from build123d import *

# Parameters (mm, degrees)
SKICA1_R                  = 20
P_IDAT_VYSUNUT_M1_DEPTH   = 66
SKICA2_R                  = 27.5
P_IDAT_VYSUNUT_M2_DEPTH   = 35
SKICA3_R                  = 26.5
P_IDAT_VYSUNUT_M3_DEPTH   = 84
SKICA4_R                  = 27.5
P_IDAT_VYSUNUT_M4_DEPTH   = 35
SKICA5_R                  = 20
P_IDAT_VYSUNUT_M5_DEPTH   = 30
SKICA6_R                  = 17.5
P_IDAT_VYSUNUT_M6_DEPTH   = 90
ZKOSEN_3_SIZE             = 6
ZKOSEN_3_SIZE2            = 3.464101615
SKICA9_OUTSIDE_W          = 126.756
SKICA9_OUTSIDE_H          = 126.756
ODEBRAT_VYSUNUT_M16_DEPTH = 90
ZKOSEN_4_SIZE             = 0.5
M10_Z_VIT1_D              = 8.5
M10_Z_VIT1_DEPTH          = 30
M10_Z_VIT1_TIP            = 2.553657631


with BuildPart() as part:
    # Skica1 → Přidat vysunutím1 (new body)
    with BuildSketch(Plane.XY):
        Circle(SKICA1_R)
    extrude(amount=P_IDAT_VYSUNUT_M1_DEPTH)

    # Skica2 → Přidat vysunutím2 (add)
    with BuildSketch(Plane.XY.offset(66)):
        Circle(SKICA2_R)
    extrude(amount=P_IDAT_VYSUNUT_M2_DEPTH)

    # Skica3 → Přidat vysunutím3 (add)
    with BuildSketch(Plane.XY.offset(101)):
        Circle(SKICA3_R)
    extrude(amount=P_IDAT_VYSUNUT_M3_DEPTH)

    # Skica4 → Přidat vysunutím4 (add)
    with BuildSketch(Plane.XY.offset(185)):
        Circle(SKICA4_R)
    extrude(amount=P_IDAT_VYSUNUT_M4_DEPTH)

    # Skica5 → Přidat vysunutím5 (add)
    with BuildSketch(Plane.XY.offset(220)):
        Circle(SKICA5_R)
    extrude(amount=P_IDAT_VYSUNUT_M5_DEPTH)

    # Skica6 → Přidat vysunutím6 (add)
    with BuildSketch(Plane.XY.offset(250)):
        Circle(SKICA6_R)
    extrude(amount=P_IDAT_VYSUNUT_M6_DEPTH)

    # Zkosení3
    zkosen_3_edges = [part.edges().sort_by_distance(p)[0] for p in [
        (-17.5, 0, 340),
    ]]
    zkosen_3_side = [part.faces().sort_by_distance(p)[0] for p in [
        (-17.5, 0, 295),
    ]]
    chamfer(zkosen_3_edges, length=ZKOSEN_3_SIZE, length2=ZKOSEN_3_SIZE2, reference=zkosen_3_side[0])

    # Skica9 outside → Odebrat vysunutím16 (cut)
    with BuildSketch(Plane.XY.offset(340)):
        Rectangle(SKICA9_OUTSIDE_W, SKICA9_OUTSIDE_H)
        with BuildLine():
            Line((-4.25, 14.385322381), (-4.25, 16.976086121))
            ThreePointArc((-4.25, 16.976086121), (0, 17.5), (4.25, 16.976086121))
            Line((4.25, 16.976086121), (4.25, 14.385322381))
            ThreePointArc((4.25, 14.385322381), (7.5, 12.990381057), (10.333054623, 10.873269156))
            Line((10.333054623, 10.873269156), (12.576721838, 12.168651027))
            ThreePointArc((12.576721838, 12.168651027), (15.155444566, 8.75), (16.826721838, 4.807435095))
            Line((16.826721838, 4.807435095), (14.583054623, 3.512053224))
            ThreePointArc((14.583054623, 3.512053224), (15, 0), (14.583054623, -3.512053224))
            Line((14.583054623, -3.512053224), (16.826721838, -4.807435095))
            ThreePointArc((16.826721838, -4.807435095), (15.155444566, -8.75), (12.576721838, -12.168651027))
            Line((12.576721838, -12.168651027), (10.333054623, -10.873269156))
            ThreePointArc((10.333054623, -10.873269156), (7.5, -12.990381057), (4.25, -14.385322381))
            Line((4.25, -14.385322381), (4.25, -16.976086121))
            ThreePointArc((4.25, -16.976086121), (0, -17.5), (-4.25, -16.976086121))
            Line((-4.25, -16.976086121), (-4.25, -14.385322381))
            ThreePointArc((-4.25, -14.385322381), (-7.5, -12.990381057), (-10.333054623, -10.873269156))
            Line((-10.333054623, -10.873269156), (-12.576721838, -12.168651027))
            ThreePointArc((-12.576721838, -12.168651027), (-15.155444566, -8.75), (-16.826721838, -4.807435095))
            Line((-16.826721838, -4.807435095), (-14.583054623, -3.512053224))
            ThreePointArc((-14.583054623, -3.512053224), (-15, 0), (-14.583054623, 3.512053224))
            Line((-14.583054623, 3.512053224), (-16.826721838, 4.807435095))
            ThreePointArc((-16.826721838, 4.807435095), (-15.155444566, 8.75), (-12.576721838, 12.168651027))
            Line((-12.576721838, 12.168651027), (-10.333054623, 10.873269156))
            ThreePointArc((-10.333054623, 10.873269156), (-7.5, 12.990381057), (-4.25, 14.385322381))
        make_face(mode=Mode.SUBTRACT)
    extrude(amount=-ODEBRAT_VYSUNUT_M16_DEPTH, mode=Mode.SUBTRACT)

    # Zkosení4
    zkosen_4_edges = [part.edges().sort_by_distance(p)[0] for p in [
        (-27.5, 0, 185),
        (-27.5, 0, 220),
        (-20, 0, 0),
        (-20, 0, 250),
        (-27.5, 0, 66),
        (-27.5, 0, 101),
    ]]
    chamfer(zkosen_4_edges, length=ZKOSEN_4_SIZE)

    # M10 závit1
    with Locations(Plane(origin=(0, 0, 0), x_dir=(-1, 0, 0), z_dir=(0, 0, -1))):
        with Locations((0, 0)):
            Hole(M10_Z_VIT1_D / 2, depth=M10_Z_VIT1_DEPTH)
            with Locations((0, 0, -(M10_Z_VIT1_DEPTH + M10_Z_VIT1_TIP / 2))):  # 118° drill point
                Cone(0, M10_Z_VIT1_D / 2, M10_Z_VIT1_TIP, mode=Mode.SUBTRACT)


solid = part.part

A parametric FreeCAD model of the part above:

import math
import FreeCAD as App
import Part
import Sketcher

V = App.Vector
Q = App.Units.Quantity


def edges_at(feature, points):
    """Names of the edges that pass closest to the given points."""
    edges = feature.Shape.Edges
    near = lambda p: min(range(len(edges)), key=lambda i: edges[i].distToShape(Part.Vertex(*p))[0])
    return sorted({f"Edge{near(p) + 1}" for p in points})


def add_polygon(sketch, points):
    """Adds a closed chain of lines whose ends are joined by coincident constraints."""
    first, n = sketch.GeometryCount, len(points)
    for a, b in zip(points, points[1:] + points[:1]):
        sketch.addGeometry(Part.LineSegment(App.Vector(*a, 0), App.Vector(*b, 0)), False)
    for i in range(n):
        sketch.addConstraint(Sketcher.Constraint("Coincident", first + i, 2, first + (i + 1) % n, 1))

doc = App.newDocument("Part")
body = doc.addObject("PartDesign::Body", "Body")

# Sketch on XY plane
sketch1 = body.newObject("Sketcher::SketchObject", "Sketch")
sketch1.AttachmentSupport = (doc.getObject("XY_Plane"), [""])
sketch1.MapMode = "FlatFace"
sketch1.addGeometry(Part.Circle(V(0, 0, 0), V(0, 0, 1), 20), False)
sketch1.addConstraint(Sketcher.Constraint("Coincident", 0, 3, -1, 1))
sketch1.addConstraint(Sketcher.Constraint("Diameter", 0, 40.0))
pad1 = body.newObject("PartDesign::Pad", "Pad")
pad1.Profile = sketch1
pad1.Length = 66

# Sketch on XY plane
sketch2 = body.newObject("Sketcher::SketchObject", "Sketch001")
sketch2.AttachmentSupport = (doc.getObject("XY_Plane"), [""])
sketch2.MapMode = "FlatFace"
sketch2.AttachmentOffset = App.Placement(V(0, 0, 66), App.Rotation())
sketch2.addGeometry(Part.Circle(V(0, 0, 0), V(0, 0, 1), 28), False)
sketch2.addConstraint(Sketcher.Constraint("Coincident", 0, 3, -1, 1))
sketch2.addConstraint(Sketcher.Constraint("Diameter", 0, 55.0))
pad2 = body.newObject("PartDesign::Pad", "Pad001")
pad2.Profile = sketch2
pad2.Length = 35

# Sketch on XY plane
sketch3 = body.newObject("Sketcher::SketchObject", "Sketch002")
sketch3.AttachmentSupport = (doc.getObject("XY_Plane"), [""])
sketch3.MapMode = "FlatFace"
sketch3.AttachmentOffset = App.Placement(V(0, 0, 101), App.Rotation())
sketch3.addGeometry(Part.Circle(V(0, 0, 0), V(0, 0, 1), 26), False)
sketch3.addConstraint(Sketcher.Constraint("Coincident", 0, 3, -1, 1))
sketch3.addConstraint(Sketcher.Constraint("Diameter", 0, 53.0))
pad3 = body.newObject("PartDesign::Pad", "Pad002")
pad3.Profile = sketch3
pad3.Length = 84

# Sketch on XY plane
sketch4 = body.newObject("Sketcher::SketchObject", "Sketch003")
sketch4.AttachmentSupport = (doc.getObject("XY_Plane"), [""])
sketch4.MapMode = "FlatFace"
sketch4.AttachmentOffset = App.Placement(V(0, 0, 185), App.Rotation())
sketch4.addGeometry(Part.Circle(V(0, 0, 0), V(0, 0, 1), 28), False)
sketch4.addConstraint(Sketcher.Constraint("Coincident", 0, 3, -1, 1))
sketch4.addConstraint(Sketcher.Constraint("Diameter", 0, 55.0))
pad4 = body.newObject("PartDesign::Pad", "Pad003")
pad4.Profile = sketch4
pad4.Length = 35

# Sketch on XY plane
sketch5 = body.newObject("Sketcher::SketchObject", "Sketch004")
sketch5.AttachmentSupport = (doc.getObject("XY_Plane"), [""])
sketch5.MapMode = "FlatFace"
sketch5.AttachmentOffset = App.Placement(V(0, 0, 220), App.Rotation())
sketch5.addGeometry(Part.Circle(V(0, 0, 0), V(0, 0, 1), 20), False)
sketch5.addConstraint(Sketcher.Constraint("Coincident", 0, 3, -1, 1))
sketch5.addConstraint(Sketcher.Constraint("Diameter", 0, 40.0))
pad5 = body.newObject("PartDesign::Pad", "Pad004")
pad5.Profile = sketch5
pad5.Length = 30

# Sketch on XY plane
sketch6 = body.newObject("Sketcher::SketchObject", "Sketch005")
sketch6.AttachmentSupport = (doc.getObject("XY_Plane"), [""])
sketch6.MapMode = "FlatFace"
sketch6.AttachmentOffset = App.Placement(V(0, 0, 250), App.Rotation())
sketch6.addGeometry(Part.Circle(V(0, 0, 0), V(0, 0, 1), 18), False)
sketch6.addConstraint(Sketcher.Constraint("Coincident", 0, 3, -1, 1))
sketch6.addConstraint(Sketcher.Constraint("Diameter", 0, 35.0))
pad6 = body.newObject("PartDesign::Pad", "Pad005")
pad6.Profile = sketch6
pad6.Length = 90
doc.recompute()

chamfer = body.newObject("PartDesign::Chamfer", "Chamfer")
chamfer.Base = (pad6, edges_at(pad6, [(-17.5, 0, 340)]))
chamfer.ChamferType = "Two distances"
chamfer.Size = 6
chamfer.Size2 = 3.464102

# Sketch on XY plane
sketch7 = body.newObject("Sketcher::SketchObject", "Sketch006")
sketch7.AttachmentSupport = (doc.getObject("XY_Plane"), [""])
sketch7.MapMode = "FlatFace"
sketch7.AttachmentOffset = App.Placement(V(0, 0, 340), App.Rotation())
add_polygon(sketch7, [(-63.4, 63.4), (-63.4, -63.4), (63.4, -63.4), (63.4, 63.4)])  # lines 0-3
sketch7.addGeometry(Part.ArcOfCircle(Part.Circle(V(0, 0, 0), V(0, 0, 1), 15), math.radians(106), math.radians(134)), False)  # 4
sketch7.addGeometry(Part.LineSegment(V(-4.2, 14.4, 0), V(-4.2, 17, 0)), False)  # 5
sketch7.addGeometry(Part.ArcOfCircle(Part.Circle(V(0, 0, 0), V(0, 0, 1), 17.5), math.radians(76), math.radians(104)), False)  # 6
sketch7.addGeometry(Part.LineSegment(V(4.2, 17, 0), V(4.2, 14.4, 0)), False)  # 7
sketch7.addGeometry(Part.ArcOfCircle(Part.Circle(V(0, 0, 0), V(0, 0, 1), 15), math.radians(46), math.radians(74)), False)  # 8
sketch7.addGeometry(Part.LineSegment(V(10.3, 10.9, 0), V(12.6, 12.2, 0)), False)  # 9
sketch7.addGeometry(Part.ArcOfCircle(Part.Circle(V(0, 0, 0), V(0, 0, 1), 17.5), math.radians(16), math.radians(44)), False)  # 10
sketch7.addGeometry(Part.LineSegment(V(16.8, 4.8, 0), V(14.6, 3.5, 0)), False)  # 11
sketch7.addGeometry(Part.ArcOfCircle(Part.Circle(V(0, 0, 0), V(0, 0, 1), 15), math.radians(-14), math.radians(14)), False)  # 12
sketch7.addGeometry(Part.LineSegment(V(14.6, -3.5, 0), V(16.8, -4.8, 0)), False)  # 13
sketch7.addGeometry(Part.ArcOfCircle(Part.Circle(V(0, 0, 0), V(0, 0, 1), 17.5), math.radians(-44), math.radians(-16)), False)  # 14
sketch7.addGeometry(Part.LineSegment(V(12.6, -12.2, 0), V(10.3, -10.9, 0)), False)  # 15
sketch7.addGeometry(Part.ArcOfCircle(Part.Circle(V(0, 0, 0), V(0, 0, 1), 15), math.radians(-74), math.radians(-46)), False)  # 16
sketch7.addGeometry(Part.LineSegment(V(4.2, -14.4, 0), V(4.2, -17, 0)), False)  # 17
sketch7.addGeometry(Part.ArcOfCircle(Part.Circle(V(0, 0, 0), V(0, 0, 1), 17.5), math.radians(-104), math.radians(-76)), False)  # 18
sketch7.addGeometry(Part.LineSegment(V(-4.2, -17, 0), V(-4.2, -14.4, 0)), False)  # 19
sketch7.addGeometry(Part.ArcOfCircle(Part.Circle(V(0, 0, 0), V(0, 0, 1), 15), math.radians(-134), math.radians(-106)), False)  # 20
sketch7.addGeometry(Part.LineSegment(V(-10.3, -10.9, 0), V(-12.6, -12.2, 0)), False)  # 21
sketch7.addGeometry(Part.ArcOfCircle(Part.Circle(V(0, 0, 0), V(0, 0, 1), 17.5), math.radians(-164), math.radians(-136)), False)  # 22
sketch7.addGeometry(Part.LineSegment(V(-16.8, -4.8, 0), V(-14.6, -3.5, 0)), False)  # 23
sketch7.addGeometry(Part.ArcOfCircle(Part.Circle(V(0, 0, 0), V(0, 0, 1), 15), math.radians(166), math.radians(194)), False)  # 24
sketch7.addGeometry(Part.LineSegment(V(-14.6, 3.5, 0), V(-16.8, 4.8, 0)), False)  # 25
sketch7.addGeometry(Part.ArcOfCircle(Part.Circle(V(0, 0, 0), V(0, 0, 1), 17.5), math.radians(136), math.radians(164)), False)  # 26
sketch7.addGeometry(Part.LineSegment(V(-12.6, 12.2, 0), V(-10.3, 10.9, 0)), False)  # 27
sketch7.addConstraint(Sketcher.Constraint("Coincident", 4, 1, 5, 1))
sketch7.addConstraint(Sketcher.Constraint("Coincident", 5, 2, 6, 2))
sketch7.addConstraint(Sketcher.Constraint("Coincident", 6, 1, 7, 1))
sketch7.addConstraint(Sketcher.Constraint("Coincident", 7, 2, 8, 2))
sketch7.addConstraint(Sketcher.Constraint("Coincident", 8, 1, 9, 1))
sketch7.addConstraint(Sketcher.Constraint("Coincident", 9, 2, 10, 2))
sketch7.addConstraint(Sketcher.Constraint("Coincident", 10, 1, 11, 1))
sketch7.addConstraint(Sketcher.Constraint("Coincident", 11, 2, 12, 2))
sketch7.addConstraint(Sketcher.Constraint("Coincident", 12, 1, 13, 1))
sketch7.addConstraint(Sketcher.Constraint("Coincident", 13, 2, 14, 2))
sketch7.addConstraint(Sketcher.Constraint("Coincident", 14, 1, 15, 1))
sketch7.addConstraint(Sketcher.Constraint("Coincident", 15, 2, 16, 2))
sketch7.addConstraint(Sketcher.Constraint("Coincident", 16, 1, 17, 1))
sketch7.addConstraint(Sketcher.Constraint("Coincident", 17, 2, 18, 2))
sketch7.addConstraint(Sketcher.Constraint("Coincident", 18, 1, 19, 1))
sketch7.addConstraint(Sketcher.Constraint("Coincident", 19, 2, 20, 2))
sketch7.addConstraint(Sketcher.Constraint("Coincident", 20, 1, 21, 1))
sketch7.addConstraint(Sketcher.Constraint("Coincident", 21, 2, 22, 2))
sketch7.addConstraint(Sketcher.Constraint("Coincident", 22, 1, 23, 1))
sketch7.addConstraint(Sketcher.Constraint("Coincident", 23, 2, 24, 2))
sketch7.addConstraint(Sketcher.Constraint("Coincident", 24, 1, 25, 1))
sketch7.addConstraint(Sketcher.Constraint("Coincident", 25, 2, 26, 2))
sketch7.addConstraint(Sketcher.Constraint("Coincident", 26, 1, 27, 1))
sketch7.addConstraint(Sketcher.Constraint("Coincident", 27, 2, 4, 2))
sketch7.addConstraint(Sketcher.Constraint("Vertical", 0))
sketch7.addConstraint(Sketcher.Constraint("Horizontal", 1))
sketch7.addConstraint(Sketcher.Constraint("Vertical", 2))
sketch7.addConstraint(Sketcher.Constraint("Horizontal", 3))
sketch7.addConstraint(Sketcher.Constraint("Vertical", 5))
sketch7.addConstraint(Sketcher.Constraint("Vertical", 7))
sketch7.addConstraint(Sketcher.Constraint("Vertical", 17))
sketch7.addConstraint(Sketcher.Constraint("Vertical", 19))
sketch7.addConstraint(Sketcher.Constraint("Coincident", 4, 3, -1, 1))
sketch7.addConstraint(Sketcher.Constraint("Coincident", 6, 3, -1, 1))
sketch7.addConstraint(Sketcher.Constraint("Coincident", 8, 3, -1, 1))
sketch7.addConstraint(Sketcher.Constraint("Coincident", 10, 3, -1, 1))
sketch7.addConstraint(Sketcher.Constraint("Coincident", 12, 3, -1, 1))
sketch7.addConstraint(Sketcher.Constraint("Coincident", 14, 3, -1, 1))
sketch7.addConstraint(Sketcher.Constraint("Coincident", 16, 3, -1, 1))
sketch7.addConstraint(Sketcher.Constraint("Coincident", 18, 3, -1, 1))
sketch7.addConstraint(Sketcher.Constraint("Coincident", 20, 3, -1, 1))
sketch7.addConstraint(Sketcher.Constraint("Coincident", 22, 3, -1, 1))
sketch7.addConstraint(Sketcher.Constraint("Coincident", 24, 3, -1, 1))
sketch7.addConstraint(Sketcher.Constraint("Coincident", 26, 3, -1, 1))
sketch7.addConstraint(Sketcher.Constraint("Equal", 4, 8))
sketch7.addConstraint(Sketcher.Constraint("Equal", 6, 10))
sketch7.addConstraint(Sketcher.Constraint("Equal", 8, 12))
sketch7.addConstraint(Sketcher.Constraint("Equal", 10, 14))
sketch7.addConstraint(Sketcher.Constraint("Equal", 12, 16))
sketch7.addConstraint(Sketcher.Constraint("Equal", 14, 18))
sketch7.addConstraint(Sketcher.Constraint("Equal", 16, 20))
sketch7.addConstraint(Sketcher.Constraint("Equal", 18, 22))
sketch7.addConstraint(Sketcher.Constraint("Equal", 20, 24))
sketch7.addConstraint(Sketcher.Constraint("Equal", 22, 26))
sketch7.addConstraint(Sketcher.Constraint("Symmetric", 0, 2, 2, 2, -1, 1))
sketch7.addConstraint(Sketcher.Constraint("Parallel", 9, 11))
sketch7.addConstraint(Sketcher.Constraint("Parallel", 13, 15))
sketch7.addConstraint(Sketcher.Constraint("Parallel", 11, 21))
sketch7.addConstraint(Sketcher.Constraint("Parallel", 21, 23))
sketch7.addConstraint(Sketcher.Constraint("Parallel", 15, 25))
sketch7.addConstraint(Sketcher.Constraint("Parallel", 25, 27))
sketch7.addConstraint(Sketcher.Constraint("Horizontal", 5, 2, 6, 1))
sketch7.addConstraint(Sketcher.Constraint("Horizontal", 17, 2, 18, 1))
sketch7.addConstraint(Sketcher.Constraint("Horizontal", 15, 2, 20, 1))
sketch7.addConstraint(Sketcher.Constraint("Horizontal", 14, 1, 21, 2))
sketch7.addConstraint(Sketcher.Constraint("Horizontal", 13, 2, 22, 1))
sketch7.addConstraint(Sketcher.Constraint("Horizontal", 11, 2, 24, 1))
sketch7.addConstraint(Sketcher.Constraint("Horizontal", 9, 2, 26, 1))
sketch7.addConstraint(Sketcher.Constraint("Vertical", 11, 2, 12, 1))
sketch7.addConstraint(Sketcher.Constraint("Vertical", 9, 2, 14, 1))
sketch7.addConstraint(Sketcher.Constraint("Vertical", 7, 2, 16, 1))
sketch7.addConstraint(Sketcher.Constraint("Equal", 3, 0))
sketch7.addConstraint(Sketcher.Constraint("Equal", 9, 11))
sketch7.addConstraint(Sketcher.Constraint("Radius", 4, 15.0))
sketch7.addConstraint(Sketcher.Constraint("Radius", 6, 17.5))
sketch7.addConstraint(Sketcher.Constraint("Angle", 9, Q("30 deg")))
sketch7.addConstraint(Sketcher.Constraint("DistanceX", 5, 2, 6, 1, 8.5))
sketch7.addConstraint(Sketcher.Constraint("DistanceX", 1, 1, 1, 2, 126.756))
sketch7.addConstraint(Sketcher.Constraint("DistanceX", 9, 2, 10, 1, 4.25))
pocket1 = body.newObject("PartDesign::Pocket", "Pocket")
pocket1.Profile = sketch7
pocket1.Length = 90
doc.recompute()

chamfer2 = body.newObject("PartDesign::Chamfer", "Chamfer001")
chamfer2.Base = (pocket1, edges_at(pocket1, [
    (-27.5, 0, 185),
    (-27.5, 0, 220),
    (-20, 0, 0),
    (-20, 0, 250),
    (-27.5, 0, 66),
    (-27.5, 0, 101),
]))
chamfer2.Size = 0.5

# Sketch on XY plane
sketch8 = body.newObject("Sketcher::SketchObject", "Sketch007")
sketch8.AttachmentSupport = (doc.getObject("XY_Plane"), [""])
sketch8.MapMode = "FlatFace"
sketch8.addGeometry(Part.Circle(V(0, 0, 0), V(0, 0, 1), 4.2), False)
sketch8.addConstraint(Sketcher.Constraint("Coincident", 0, 3, -1, 1))
sketch8.addConstraint(Sketcher.Constraint("Diameter", 0, 8.5))
doc.recompute()
hole = body.newObject("PartDesign::Hole", "Hole")
hole.Profile = sketch8
hole.ThreadType = "None"
hole.Diameter = 8.5
hole.DepthType = "Dimension"
hole.Depth = 30
hole.DrillPoint = "Angled"
hole.DrillPointAngle = 118
hole.Reversed = True

doc.recompute()
